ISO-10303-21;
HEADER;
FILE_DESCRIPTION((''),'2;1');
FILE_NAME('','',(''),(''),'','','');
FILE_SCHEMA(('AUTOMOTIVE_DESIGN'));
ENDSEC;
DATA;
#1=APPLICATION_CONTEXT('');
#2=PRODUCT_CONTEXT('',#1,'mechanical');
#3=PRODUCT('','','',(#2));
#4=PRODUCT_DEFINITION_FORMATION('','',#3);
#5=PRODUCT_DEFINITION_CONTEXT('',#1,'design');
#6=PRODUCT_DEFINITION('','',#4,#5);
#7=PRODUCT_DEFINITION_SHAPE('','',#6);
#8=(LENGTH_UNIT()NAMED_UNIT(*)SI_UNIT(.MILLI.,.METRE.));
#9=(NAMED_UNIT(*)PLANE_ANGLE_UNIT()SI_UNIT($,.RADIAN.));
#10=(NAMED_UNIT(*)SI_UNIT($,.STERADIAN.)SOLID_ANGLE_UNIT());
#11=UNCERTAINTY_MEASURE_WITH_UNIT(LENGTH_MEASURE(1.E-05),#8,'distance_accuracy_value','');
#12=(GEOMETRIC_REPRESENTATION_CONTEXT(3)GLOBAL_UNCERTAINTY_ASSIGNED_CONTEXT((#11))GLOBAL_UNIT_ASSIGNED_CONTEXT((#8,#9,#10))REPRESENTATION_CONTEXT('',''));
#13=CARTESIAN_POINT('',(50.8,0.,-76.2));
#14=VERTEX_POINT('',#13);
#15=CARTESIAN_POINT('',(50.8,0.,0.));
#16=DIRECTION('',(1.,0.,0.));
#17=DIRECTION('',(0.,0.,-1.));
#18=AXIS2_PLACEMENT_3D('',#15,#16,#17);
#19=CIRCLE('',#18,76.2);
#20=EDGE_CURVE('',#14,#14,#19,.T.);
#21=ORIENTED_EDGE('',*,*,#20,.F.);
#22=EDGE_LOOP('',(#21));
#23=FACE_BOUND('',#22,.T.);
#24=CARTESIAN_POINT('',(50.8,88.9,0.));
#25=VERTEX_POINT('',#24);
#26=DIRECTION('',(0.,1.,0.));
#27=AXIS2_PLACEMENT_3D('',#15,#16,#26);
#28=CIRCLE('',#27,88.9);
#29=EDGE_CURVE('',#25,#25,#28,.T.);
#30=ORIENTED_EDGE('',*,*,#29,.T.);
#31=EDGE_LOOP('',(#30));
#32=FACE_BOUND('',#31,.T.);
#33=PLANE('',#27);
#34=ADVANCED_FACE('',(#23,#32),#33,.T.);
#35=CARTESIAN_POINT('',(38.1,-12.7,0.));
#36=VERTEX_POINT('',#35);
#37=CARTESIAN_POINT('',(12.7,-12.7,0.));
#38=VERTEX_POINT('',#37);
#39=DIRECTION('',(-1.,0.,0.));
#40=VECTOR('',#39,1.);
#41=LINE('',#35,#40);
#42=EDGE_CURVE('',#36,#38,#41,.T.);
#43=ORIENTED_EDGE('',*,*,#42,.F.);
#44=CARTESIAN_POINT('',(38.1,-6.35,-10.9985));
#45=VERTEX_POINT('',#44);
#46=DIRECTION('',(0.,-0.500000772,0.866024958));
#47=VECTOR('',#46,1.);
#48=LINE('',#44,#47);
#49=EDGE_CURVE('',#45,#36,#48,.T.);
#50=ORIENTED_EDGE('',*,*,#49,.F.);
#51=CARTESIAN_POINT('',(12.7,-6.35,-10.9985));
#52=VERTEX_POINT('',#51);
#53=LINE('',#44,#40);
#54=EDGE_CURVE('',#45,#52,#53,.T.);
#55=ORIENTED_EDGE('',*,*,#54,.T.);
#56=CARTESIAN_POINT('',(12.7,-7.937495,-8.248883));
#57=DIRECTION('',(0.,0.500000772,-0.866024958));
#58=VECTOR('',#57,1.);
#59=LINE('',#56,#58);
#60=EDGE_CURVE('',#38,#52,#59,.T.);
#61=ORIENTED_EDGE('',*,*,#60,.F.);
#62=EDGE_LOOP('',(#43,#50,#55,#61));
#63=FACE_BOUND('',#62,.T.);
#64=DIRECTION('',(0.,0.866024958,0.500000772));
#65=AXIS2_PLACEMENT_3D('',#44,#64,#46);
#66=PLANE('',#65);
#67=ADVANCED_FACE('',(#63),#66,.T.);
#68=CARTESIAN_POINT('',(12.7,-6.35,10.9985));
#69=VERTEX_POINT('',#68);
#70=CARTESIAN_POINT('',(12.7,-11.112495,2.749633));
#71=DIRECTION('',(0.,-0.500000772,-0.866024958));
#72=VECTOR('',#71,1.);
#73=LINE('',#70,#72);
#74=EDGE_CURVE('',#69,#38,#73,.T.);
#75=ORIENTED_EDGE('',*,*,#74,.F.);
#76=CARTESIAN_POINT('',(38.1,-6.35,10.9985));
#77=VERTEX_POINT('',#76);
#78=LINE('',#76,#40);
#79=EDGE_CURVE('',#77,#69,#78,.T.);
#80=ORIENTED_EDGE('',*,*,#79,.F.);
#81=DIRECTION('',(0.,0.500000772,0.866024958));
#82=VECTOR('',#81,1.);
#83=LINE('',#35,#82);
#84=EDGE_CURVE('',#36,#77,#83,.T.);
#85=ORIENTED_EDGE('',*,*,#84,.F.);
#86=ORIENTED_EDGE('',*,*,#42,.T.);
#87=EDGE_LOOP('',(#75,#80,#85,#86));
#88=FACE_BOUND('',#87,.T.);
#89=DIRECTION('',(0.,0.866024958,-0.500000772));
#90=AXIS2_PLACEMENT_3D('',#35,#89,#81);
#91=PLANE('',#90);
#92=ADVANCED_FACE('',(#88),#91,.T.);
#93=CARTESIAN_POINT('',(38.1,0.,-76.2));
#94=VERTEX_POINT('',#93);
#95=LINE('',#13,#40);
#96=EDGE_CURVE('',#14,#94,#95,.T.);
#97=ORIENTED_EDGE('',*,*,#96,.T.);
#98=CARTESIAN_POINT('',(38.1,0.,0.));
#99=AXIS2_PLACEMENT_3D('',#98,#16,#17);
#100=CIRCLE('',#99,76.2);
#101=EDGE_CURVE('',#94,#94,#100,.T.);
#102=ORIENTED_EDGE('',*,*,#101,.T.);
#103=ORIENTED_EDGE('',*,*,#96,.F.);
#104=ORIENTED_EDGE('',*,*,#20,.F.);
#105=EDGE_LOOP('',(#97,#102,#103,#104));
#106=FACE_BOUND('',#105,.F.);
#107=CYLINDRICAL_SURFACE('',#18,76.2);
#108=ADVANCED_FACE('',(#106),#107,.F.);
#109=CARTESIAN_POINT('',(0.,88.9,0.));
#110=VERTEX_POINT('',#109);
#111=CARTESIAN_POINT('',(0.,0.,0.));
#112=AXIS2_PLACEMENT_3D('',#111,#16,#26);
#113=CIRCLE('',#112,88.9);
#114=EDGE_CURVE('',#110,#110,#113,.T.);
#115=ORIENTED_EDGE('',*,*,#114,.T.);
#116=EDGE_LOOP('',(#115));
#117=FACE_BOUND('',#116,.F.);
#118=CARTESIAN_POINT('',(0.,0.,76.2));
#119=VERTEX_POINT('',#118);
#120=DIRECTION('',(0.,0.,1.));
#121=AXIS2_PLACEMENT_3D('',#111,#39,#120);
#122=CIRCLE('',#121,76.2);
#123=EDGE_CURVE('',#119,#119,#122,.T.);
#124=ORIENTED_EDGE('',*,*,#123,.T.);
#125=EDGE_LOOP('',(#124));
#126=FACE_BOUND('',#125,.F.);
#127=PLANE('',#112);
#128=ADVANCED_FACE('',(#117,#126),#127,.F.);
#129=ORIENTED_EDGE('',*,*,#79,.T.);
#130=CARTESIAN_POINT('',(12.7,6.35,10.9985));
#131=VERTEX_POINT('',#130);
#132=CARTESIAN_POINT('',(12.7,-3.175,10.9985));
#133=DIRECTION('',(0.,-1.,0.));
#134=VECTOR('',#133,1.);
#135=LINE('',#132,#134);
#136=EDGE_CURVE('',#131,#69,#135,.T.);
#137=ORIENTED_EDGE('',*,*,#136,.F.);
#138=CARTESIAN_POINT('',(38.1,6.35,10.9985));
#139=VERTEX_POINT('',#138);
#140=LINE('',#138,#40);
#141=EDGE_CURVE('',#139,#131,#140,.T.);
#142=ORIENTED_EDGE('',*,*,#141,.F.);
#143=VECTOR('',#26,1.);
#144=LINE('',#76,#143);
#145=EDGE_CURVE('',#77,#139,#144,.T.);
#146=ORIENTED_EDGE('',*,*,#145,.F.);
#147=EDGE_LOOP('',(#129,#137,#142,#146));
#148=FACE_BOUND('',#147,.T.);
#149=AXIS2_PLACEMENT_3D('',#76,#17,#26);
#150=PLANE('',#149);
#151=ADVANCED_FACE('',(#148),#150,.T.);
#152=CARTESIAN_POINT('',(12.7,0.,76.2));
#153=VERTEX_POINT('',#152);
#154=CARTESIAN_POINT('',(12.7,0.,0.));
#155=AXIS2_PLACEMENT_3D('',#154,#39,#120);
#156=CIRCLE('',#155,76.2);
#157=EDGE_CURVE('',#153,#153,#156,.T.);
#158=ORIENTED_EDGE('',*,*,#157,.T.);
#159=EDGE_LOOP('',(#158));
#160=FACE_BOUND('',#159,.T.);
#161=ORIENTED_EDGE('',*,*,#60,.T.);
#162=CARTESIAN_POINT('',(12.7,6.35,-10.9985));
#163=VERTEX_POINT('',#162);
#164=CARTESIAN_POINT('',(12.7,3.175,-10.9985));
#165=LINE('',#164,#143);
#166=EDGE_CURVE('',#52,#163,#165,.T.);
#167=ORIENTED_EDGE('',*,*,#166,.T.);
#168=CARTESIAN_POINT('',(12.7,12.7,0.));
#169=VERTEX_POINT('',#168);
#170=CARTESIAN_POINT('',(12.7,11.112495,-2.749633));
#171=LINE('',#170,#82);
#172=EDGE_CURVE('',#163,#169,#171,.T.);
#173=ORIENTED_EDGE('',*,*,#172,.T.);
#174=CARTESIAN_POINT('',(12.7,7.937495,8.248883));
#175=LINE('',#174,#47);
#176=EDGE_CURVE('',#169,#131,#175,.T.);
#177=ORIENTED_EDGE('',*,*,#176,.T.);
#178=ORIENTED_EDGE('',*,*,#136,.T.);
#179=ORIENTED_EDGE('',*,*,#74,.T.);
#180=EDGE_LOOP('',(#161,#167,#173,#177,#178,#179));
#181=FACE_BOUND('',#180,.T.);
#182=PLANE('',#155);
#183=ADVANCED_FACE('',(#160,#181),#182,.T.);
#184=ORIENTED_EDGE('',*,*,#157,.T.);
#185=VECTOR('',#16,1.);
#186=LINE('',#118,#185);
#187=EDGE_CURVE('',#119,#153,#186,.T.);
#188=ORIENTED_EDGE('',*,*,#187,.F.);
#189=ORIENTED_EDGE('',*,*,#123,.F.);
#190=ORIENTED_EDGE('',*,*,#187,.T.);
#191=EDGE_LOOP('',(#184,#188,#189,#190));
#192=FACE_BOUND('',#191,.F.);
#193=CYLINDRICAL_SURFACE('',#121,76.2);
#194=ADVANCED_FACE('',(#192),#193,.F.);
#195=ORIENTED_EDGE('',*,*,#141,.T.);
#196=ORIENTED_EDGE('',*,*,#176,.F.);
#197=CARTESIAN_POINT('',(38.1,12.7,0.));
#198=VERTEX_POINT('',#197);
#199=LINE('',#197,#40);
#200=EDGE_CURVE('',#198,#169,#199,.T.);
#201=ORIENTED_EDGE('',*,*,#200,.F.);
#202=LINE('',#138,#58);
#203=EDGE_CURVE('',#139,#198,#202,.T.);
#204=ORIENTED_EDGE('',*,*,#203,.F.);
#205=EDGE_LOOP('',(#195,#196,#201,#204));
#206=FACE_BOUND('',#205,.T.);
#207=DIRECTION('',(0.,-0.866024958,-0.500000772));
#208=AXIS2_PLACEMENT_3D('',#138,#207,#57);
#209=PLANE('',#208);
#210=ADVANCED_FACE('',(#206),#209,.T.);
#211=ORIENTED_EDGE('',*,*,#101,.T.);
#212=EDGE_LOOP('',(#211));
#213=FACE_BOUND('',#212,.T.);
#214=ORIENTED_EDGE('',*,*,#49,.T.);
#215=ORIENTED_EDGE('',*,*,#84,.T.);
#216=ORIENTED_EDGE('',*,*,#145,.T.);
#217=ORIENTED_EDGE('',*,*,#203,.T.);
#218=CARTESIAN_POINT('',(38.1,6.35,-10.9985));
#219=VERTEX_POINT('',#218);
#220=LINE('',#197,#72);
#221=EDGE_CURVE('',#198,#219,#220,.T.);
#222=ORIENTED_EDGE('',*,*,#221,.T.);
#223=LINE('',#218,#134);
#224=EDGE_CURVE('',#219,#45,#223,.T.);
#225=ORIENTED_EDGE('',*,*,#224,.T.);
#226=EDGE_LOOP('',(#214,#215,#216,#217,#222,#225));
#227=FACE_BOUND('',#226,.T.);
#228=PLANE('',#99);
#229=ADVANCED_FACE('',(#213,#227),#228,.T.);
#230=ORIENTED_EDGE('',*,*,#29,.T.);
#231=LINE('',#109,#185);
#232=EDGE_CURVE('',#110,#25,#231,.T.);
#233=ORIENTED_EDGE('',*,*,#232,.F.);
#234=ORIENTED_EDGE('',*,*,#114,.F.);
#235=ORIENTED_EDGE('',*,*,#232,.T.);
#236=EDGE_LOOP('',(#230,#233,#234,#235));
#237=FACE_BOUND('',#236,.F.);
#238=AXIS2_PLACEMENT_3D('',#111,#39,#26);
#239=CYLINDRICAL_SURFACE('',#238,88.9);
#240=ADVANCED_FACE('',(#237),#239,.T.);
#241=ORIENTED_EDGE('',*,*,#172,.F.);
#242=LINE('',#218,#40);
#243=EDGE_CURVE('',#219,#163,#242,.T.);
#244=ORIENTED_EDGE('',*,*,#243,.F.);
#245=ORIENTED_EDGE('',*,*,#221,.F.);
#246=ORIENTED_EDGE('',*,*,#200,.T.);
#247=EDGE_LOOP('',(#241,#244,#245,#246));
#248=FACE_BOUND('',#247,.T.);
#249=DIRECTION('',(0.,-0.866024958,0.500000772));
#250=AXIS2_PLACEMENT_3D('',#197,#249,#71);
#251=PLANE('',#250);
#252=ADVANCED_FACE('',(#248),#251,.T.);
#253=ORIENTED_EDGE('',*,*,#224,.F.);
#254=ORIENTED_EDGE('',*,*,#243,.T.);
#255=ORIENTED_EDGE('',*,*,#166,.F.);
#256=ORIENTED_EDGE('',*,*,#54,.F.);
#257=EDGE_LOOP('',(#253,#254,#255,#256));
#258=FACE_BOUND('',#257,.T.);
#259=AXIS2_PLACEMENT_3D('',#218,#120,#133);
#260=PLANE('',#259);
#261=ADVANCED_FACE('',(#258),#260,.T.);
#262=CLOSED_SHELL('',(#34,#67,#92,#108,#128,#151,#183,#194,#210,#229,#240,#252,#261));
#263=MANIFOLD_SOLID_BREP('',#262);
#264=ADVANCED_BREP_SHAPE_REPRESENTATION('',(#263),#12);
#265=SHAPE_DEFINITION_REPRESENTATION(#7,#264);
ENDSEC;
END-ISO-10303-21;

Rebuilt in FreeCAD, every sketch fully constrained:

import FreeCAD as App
import Part
import Sketcher

V = App.Vector
Q = App.Units.Quantity

doc = App.newDocument("Part")
params = doc.addObject("Spreadsheet::Sheet", "Params")
for row, (alias, value) in enumerate([
    ("sketch1_diameter", "7 in"),
    ("pad1_length", "2 in"),
    ("sketch2_diameter", "6 in"),
    ("pocket1_length", "0.5 in"),
    ("sketch3_diameter", "6 in"),
    ("pocket2_length", "0.5 in"),
    ("sketch4_width", "0.5 in"),
    ("sketch4_length", "0.5 in"),
    ("pocket3_length", "5 in"),
], start=1):
    params.set(f"A{row}", alias)
    params.set(f"B{row}", "=" + value)
    params.setAlias(f"B{row}", alias)

body = doc.addObject("PartDesign::Body", "Body")

# Sketch on YZ plane
sketch1 = body.newObject("Sketcher::SketchObject", "Sketch")
sketch1.AttachmentSupport = (doc.getObject("YZ_Plane"), [""])
sketch1.MapMode = "FlatFace"
sketch1.addGeometry(Part.Circle(V(0, 0, 0), V(0, 0, 1), 89), False)
sketch1.addConstraint(Sketcher.Constraint("Coincident", 0, 3, -1, 1))
sketch1.addConstraint(Sketcher.Constraint("Diameter", 0, Q("7 in")))
sketch1.setExpression("Constraints[1]", "Params.sketch1_diameter")
pad1 = body.newObject("PartDesign::Pad", "Pad")
pad1.Profile = sketch1
pad1.setExpression("Length", "Params.pad1_length")

# Sketch on YZ plane
sketch2 = body.newObject("Sketcher::SketchObject", "Sketch001")
sketch2.AttachmentSupport = (doc.getObject("YZ_Plane"), [""])
sketch2.MapMode = "FlatFace"
sketch2.AttachmentOffset = App.Placement(V(0, 0, 2 * 25.4), App.Rotation())
sketch2.addGeometry(Part.Circle(V(0, 0, 0), V(0, 0, 1), 76), False)
sketch2.addConstraint(Sketcher.Constraint("Coincident", 0, 3, -1, 1))
sketch2.addConstraint(Sketcher.Constraint("Diameter", 0, Q("6 in")))
sketch2.setExpression("Constraints[1]", "Params.sketch2_diameter")
pocket1 = body.newObject("PartDesign::Pocket", "Pocket")
pocket1.Profile = sketch2
pocket1.setExpression("Length", "Params.pocket1_length")

# Sketch on YZ plane
sketch3 = body.newObject("Sketcher::SketchObject", "Sketch002")
sketch3.AttachmentSupport = (doc.getObject("YZ_Plane"), [""])
sketch3.MapMode = "FlatFace"
sketch3.addGeometry(Part.Circle(V(0, 0, 0), V(0, 0, 1), 76), False)
sketch3.addConstraint(Sketcher.Constraint("Coincident", 0, 3, -1, 1))
sketch3.addConstraint(Sketcher.Constraint("Diameter", 0, Q("6 in")))
sketch3.setExpression("Constraints[1]", "Params.sketch3_diameter")
pocket2 = body.newObject("PartDesign::Pocket", "Pocket001")
pocket2.Profile = sketch3
pocket2.setExpression("Length", "Params.pocket2_length")
pocket2.Reversed = True

# Sketch on YZ plane
sketch4 = body.newObject("Sketcher::SketchObject", "Sketch003")
sketch4.AttachmentSupport = (doc.getObject("YZ_Plane"), [""])
sketch4.MapMode = "FlatFace"
sketch4.AttachmentOffset = App.Placement(V(0, 0, 1.5 * 25.4), App.Rotation())
sketch4.addGeometry(Part.LineSegment(V(6, -11, 0), V(13, 0, 0)), False)
sketch4.addGeometry(Part.LineSegment(V(13, 0, 0), V(6, 11, 0)), False)
sketch4.addGeometry(Part.LineSegment(V(6, 11, 0), V(-6, 11, 0)), False)
sketch4.addGeometry(Part.LineSegment(V(-6, 11, 0), V(-13, 0, 0)), False)
sketch4.addGeometry(Part.LineSegment(V(-13, 0, 0), V(-6, -11, 0)), False)
sketch4.addGeometry(Part.LineSegment(V(-6, -11, 0), V(6, -11, 0)), False)
sketch4.addConstraint(Sketcher.Constraint("Coincident", 0, 2, 1, 1))
sketch4.addConstraint(Sketcher.Constraint("Coincident", 1, 2, 2, 1))
sketch4.addConstraint(Sketcher.Constraint("Coincident", 2, 2, 3, 1))
sketch4.addConstraint(Sketcher.Constraint("Coincident", 3, 2, 4, 1))
sketch4.addConstraint(Sketcher.Constraint("Coincident", 4, 2, 5, 1))
sketch4.addConstraint(Sketcher.Constraint("Coincident", 5, 2, 0, 1))
sketch4.addConstraint(Sketcher.Constraint("Horizontal", 2))
sketch4.addConstraint(Sketcher.Constraint("Horizontal", 5))
sketch4.addConstraint(Sketcher.Constraint("Symmetric", 0, 2, 3, 2, -1, 1))
sketch4.addConstraint(Sketcher.Constraint("Symmetric", 1, 2, 4, 2, -1, 1))
sketch4.addConstraint(Sketcher.Constraint("PointOnObject", 0, 2, -1))
sketch4.addConstraint(Sketcher.Constraint("Parallel", 0, 3))
sketch4.addConstraint(Sketcher.Constraint("Vertical", 2, 2, 4, 2))
sketch4.addConstraint(Sketcher.Constraint("DistanceX", 2, 2, 2, 1, Q("0.5 in")))
sketch4.addConstraint(Sketcher.Constraint("Distance", 0, Q("0.5 in")))
sketch4.addConstraint(Sketcher.Constraint("DistanceX", -1, 1, 0, 2, Q("0.5 in")))
sketch4.setExpression("Constraints[13]", "Params.sketch4_width")
sketch4.setExpression("Constraints[14]", "Params.sketch4_length")
pocket3 = body.newObject("PartDesign::Pocket", "Pocket002")
pocket3.Profile = sketch4
pocket3.setExpression("Length", "Params.pocket3_length")

doc.recompute()
